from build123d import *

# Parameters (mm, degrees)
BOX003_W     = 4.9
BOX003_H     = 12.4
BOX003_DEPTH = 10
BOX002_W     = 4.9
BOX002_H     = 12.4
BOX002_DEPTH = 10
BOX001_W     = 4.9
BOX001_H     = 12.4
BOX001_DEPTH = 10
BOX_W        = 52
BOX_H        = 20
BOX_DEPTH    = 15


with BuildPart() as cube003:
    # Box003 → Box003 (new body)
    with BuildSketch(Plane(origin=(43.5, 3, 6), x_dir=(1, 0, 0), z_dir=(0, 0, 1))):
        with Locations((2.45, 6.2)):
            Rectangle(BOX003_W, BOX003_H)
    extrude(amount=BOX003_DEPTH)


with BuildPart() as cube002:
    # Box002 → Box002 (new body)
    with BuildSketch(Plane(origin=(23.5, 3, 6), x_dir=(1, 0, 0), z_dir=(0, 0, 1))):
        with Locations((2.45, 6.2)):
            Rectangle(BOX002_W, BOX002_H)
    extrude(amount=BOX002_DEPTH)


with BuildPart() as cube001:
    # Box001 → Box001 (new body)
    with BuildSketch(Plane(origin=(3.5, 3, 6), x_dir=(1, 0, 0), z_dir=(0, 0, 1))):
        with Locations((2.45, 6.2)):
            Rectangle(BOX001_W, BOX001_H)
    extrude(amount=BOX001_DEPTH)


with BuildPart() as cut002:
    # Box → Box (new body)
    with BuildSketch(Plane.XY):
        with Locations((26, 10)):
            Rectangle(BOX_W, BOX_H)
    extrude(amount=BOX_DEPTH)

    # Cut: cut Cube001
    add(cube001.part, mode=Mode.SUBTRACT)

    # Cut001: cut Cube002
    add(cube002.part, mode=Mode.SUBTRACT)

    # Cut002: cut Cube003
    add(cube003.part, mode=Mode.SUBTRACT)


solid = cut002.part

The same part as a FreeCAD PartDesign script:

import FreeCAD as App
import Part
import Sketcher
Q = App.Units.Quantity


def add_polygon(sketch, points):
    """Adds a closed chain of lines whose ends are joined by coincident constraints."""
    first, n = sketch.GeometryCount, len(points)
    for a, b in zip(points, points[1:] + points[:1]):
        sketch.addGeometry(Part.LineSegment(App.Vector(*a, 0), App.Vector(*b, 0)), False)
    for i in range(n):
        sketch.addConstraint(Sketcher.Constraint("Coincident", first + i, 2, first + (i + 1) % n, 1))

doc = App.newDocument("Part")
body = doc.addObject("PartDesign::Body", "Body")

# Sketch on XY plane
sketch1 = body.newObject("Sketcher::SketchObject", "Sketch")
sketch1.AttachmentSupport = (doc.getObject("XY_Plane"), [""])
sketch1.MapMode = "FlatFace"
sketch1.AttachmentOffset = App.Placement(App.Vector(0, 0, 6), App.Rotation())
add_polygon(sketch1, [(43.5, 15.4), (43.5, 3), (48.4, 3), (48.4, 15.4)])  # lines 0-3
sketch1.addConstraint(Sketcher.Constraint("Vertical", 0))
sketch1.addConstraint(Sketcher.Constraint("Horizontal", 1))
sketch1.addConstraint(Sketcher.Constraint("Vertical", 2))
sketch1.addConstraint(Sketcher.Constraint("Horizontal", 3))
sketch1.addConstraint(Sketcher.Constraint("DistanceX", 1, 1, 1, 2, Q("4.9 mm")))
sketch1.addConstraint(Sketcher.Constraint("DistanceY", 0, 2, 0, 1, Q("12.4 mm")))
sketch1.addConstraint(Sketcher.Constraint("DistanceY", -1, 1, 0, 2, Q("3 mm")))
sketch1.addConstraint(Sketcher.Constraint("DistanceX", -1, 1, 0, 2, Q("43.5 mm")))
pad1 = body.newObject("PartDesign::Pad", "Pad")
pad1.Profile = sketch1
pad1.Length = 10
body2 = doc.addObject("PartDesign::Body", "Body001")

# Sketch on XY plane
sketch2 = body2.newObject("Sketcher::SketchObject", "Sketch001")
sketch2.AttachmentSupport = (doc.getObject("XY_Plane001"), [""])
sketch2.MapMode = "FlatFace"
sketch2.AttachmentOffset = App.Placement(App.Vector(0, 0, 6), App.Rotation())
add_polygon(sketch2, [(23.5, 15.4), (23.5, 3), (28.4, 3), (28.4, 15.4)])  # lines 0-3
sketch2.addConstraint(Sketcher.Constraint("Vertical", 0))
sketch2.addConstraint(Sketcher.Constraint("Horizontal", 1))
sketch2.addConstraint(Sketcher.Constraint("Vertical", 2))
sketch2.addConstraint(Sketcher.Constraint("Horizontal", 3))
sketch2.addConstraint(Sketcher.Constraint("DistanceX", 1, 1, 1, 2, Q("4.9 mm")))
sketch2.addConstraint(Sketcher.Constraint("DistanceY", 0, 2, 0, 1, Q("12.4 mm")))
sketch2.addConstraint(Sketcher.Constraint("DistanceY", -1, 1, 0, 2, Q("3 mm")))
sketch2.addConstraint(Sketcher.Constraint("DistanceX", -1, 1, 0, 2, Q("23.5 mm")))
pad2 = body2.newObject("PartDesign::Pad", "Pad001")
pad2.Profile = sketch2
pad2.Length = 10
body3 = doc.addObject("PartDesign::Body", "Body002")

# Sketch on XY plane
sketch3 = body3.newObject("Sketcher::SketchObject", "Sketch002")
sketch3.AttachmentSupport = (doc.getObject("XY_Plane002"), [""])
sketch3.MapMode = "FlatFace"
sketch3.AttachmentOffset = App.Placement(App.Vector(0, 0, 6), App.Rotation())
add_polygon(sketch3, [(3.5, 15.4), (3.5, 3), (8.4, 3), (8.4, 15.4)])  # lines 0-3
sketch3.addConstraint(Sketcher.Constraint("Vertical", 0))
sketch3.addConstraint(Sketcher.Constraint("Horizontal", 1))
sketch3.addConstraint(Sketcher.Constraint("Vertical", 2))
sketch3.addConstraint(Sketcher.Constraint("Horizontal", 3))
sketch3.addConstraint(Sketcher.Constraint("DistanceX", 1, 1, 1, 2, Q("4.9 mm")))
sketch3.addConstraint(Sketcher.Constraint("DistanceY", 0, 2, 0, 1, Q("12.4 mm")))
sketch3.addConstraint(Sketcher.Constraint("DistanceY", -1, 1, 0, 2, Q("3 mm")))
sketch3.addConstraint(Sketcher.Constraint("DistanceX", -1, 1, 0, 2, Q("3.5 mm")))
pad3 = body3.newObject("PartDesign::Pad", "Pad002")
pad3.Profile = sketch3
pad3.Length = 10
body4 = doc.addObject("PartDesign::Body", "Body003")

# Sketch on XY plane
sketch4 = body4.newObject("Sketcher::SketchObject", "Sketch003")
sketch4.AttachmentSupport = (doc.getObject("XY_Plane003"), [""])
sketch4.MapMode = "FlatFace"
add_polygon(sketch4, [(0, 20), (0, 0), (52, 0), (52, 20)])  # lines 0-3
sketch4.addConstraint(Sketcher.Constraint("Vertical", 0))
sketch4.addConstraint(Sketcher.Constraint("Horizontal", 1))
sketch4.addConstraint(Sketcher.Constraint("Vertical", 2))
sketch4.addConstraint(Sketcher.Constraint("Horizontal", 3))
sketch4.addConstraint(Sketcher.Constraint("Coincident", 0, 2, -1, 1))
sketch4.addConstraint(Sketcher.Constraint("DistanceX", 1, 1, 1, 2, Q("52 mm")))
sketch4.addConstraint(Sketcher.Constraint("DistanceY", 0, 2, 0, 1, Q("20 mm")))
pad4 = body4.newObject("PartDesign::Pad", "Pad003")
pad4.Profile = sketch4
pad4.Length = 15
doc.recompute()

boolean = body4.newObject("PartDesign::Boolean", "Boolean")
boolean.Type = "Cut"
boolean.addObjects([body3])
doc.recompute()

boolean2 = body4.newObject("PartDesign::Boolean", "Boolean001")
boolean2.Type = "Cut"
boolean2.addObjects([body2])
doc.recompute()

boolean3 = body4.newObject("PartDesign::Boolean", "Boolean002")
boolean3.Type = "Cut"
boolean3.addObjects([body])

doc.recompute()
